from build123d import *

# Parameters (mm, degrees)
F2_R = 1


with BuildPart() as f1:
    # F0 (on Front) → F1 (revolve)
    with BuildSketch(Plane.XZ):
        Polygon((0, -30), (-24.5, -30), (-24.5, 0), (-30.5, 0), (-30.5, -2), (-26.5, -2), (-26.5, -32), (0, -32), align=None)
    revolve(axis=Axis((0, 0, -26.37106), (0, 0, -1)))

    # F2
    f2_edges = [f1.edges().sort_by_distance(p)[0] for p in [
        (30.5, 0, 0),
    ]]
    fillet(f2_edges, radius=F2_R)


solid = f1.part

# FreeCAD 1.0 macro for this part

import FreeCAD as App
import Part
import Sketcher


def edges_at(feature, points):
    """Names of the edges that pass closest to the given points."""
    edges = feature.Shape.Edges
    near = lambda p: min(range(len(edges)), key=lambda i: edges[i].distToShape(Part.Vertex(*p))[0])
    return sorted({f"Edge{near(p) + 1}" for p in points})

doc = App.newDocument("Part")
body = doc.addObject("PartDesign::Body", "Body")

# Sketch on XZ plane
sketch1 = doc.addObject("Sketcher::SketchObject", "Sketch")
body.addObject(sketch1)
sketch1.AttachmentSupport = (doc.XZ_Plane, [""])
sketch1.MapMode = "FlatFace"
sketch1.addGeometry(Part.LineSegment(App.Vector(0, -30, 0), App.Vector(-24.5, -30, 0)), False)
sketch1.addGeometry(Part.LineSegment(App.Vector(-24.5, -30, 0), App.Vector(-24.5, 0, 0)), False)
sketch1.addGeometry(Part.LineSegment(App.Vector(-24.5, 0, 0), App.Vector(-30.5, 0, 0)), False)
sketch1.addGeometry(Part.LineSegment(App.Vector(-30.5, 0, 0), App.Vector(-30.5, -2, 0)), False)
sketch1.addGeometry(Part.LineSegment(App.Vector(-30.5, -2, 0), App.Vector(-26.5, -2, 0)), False)
sketch1.addGeometry(Part.LineSegment(App.Vector(-26.5, -2, 0), App.Vector(-26.5, -32, 0)), False)
sketch1.addGeometry(Part.LineSegment(App.Vector(-26.5, -32, 0), App.Vector(0, -32, 0)), False)
sketch1.addGeometry(Part.LineSegment(App.Vector(0, -32, 0), App.Vector(0, -30, 0)), False)
sketch1.addConstraint(Sketcher.Constraint("Coincident", 0, 2, 1, 1))
sketch1.addConstraint(Sketcher.Constraint("Coincident", 1, 2, 2, 1))
sketch1.addConstraint(Sketcher.Constraint("Coincident", 2, 2, 3, 1))
sketch1.addConstraint(Sketcher.Constraint("Coincident", 3, 2, 4, 1))
sketch1.addConstraint(Sketcher.Constraint("Coincident", 4, 2, 5, 1))
sketch1.addConstraint(Sketcher.Constraint("Coincident", 5, 2, 6, 1))
sketch1.addConstraint(Sketcher.Constraint("Coincident", 6, 2, 7, 1))
sketch1.addConstraint(Sketcher.Constraint("Coincident", 7, 2, 0, 1))
sketch1.addConstraint(Sketcher.Constraint("Horizontal", 0))
sketch1.addConstraint(Sketcher.Constraint("Vertical", 1))
sketch1.addConstraint(Sketcher.Constraint("Horizontal", 2))
sketch1.addConstraint(Sketcher.Constraint("Vertical", 3))
sketch1.addConstraint(Sketcher.Constraint("Horizontal", 4))
sketch1.addConstraint(Sketcher.Constraint("Vertical", 5))
sketch1.addConstraint(Sketcher.Constraint("Horizontal", 6))
sketch1.addConstraint(Sketcher.Constraint("Vertical", 7))
sketch1.addConstraint(Sketcher.Constraint("PointOnObject", 1, 2, -1))
sketch1.addConstraint(Sketcher.Constraint("PointOnObject", 6, 2, -2))
sketch1.addConstraint(Sketcher.Constraint("Equal", 1, 5))
sketch1.addConstraint(Sketcher.Constraint("DistanceX", 2, 2, 2, 1, 6.0))
sketch1.addConstraint(Sketcher.Constraint("DistanceX", 4, 1, 4, 2, 4.0))
sketch1.addConstraint(Sketcher.Constraint("DistanceY", 1, 1, 1, 2, 30.0))
sketch1.addConstraint(Sketcher.Constraint("DistanceY", 3, 2, 3, 1, 2.0))
sketch1.addConstraint(Sketcher.Constraint("DistanceX", 0, 2, 0, 1, 24.5))
revolution = doc.addObject("PartDesign::Revolution", "Revolution")
body.addObject(revolution)
revolution.Profile = sketch1
revolution.ReferenceAxis = (sketch1, ["V_Axis"])
revolution.Angle = 360
doc.recompute()

fillet = doc.addObject("PartDesign::Fillet", "Fillet")
body.addObject(fillet)
fillet.Base = (revolution, edges_at(revolution, [(30.5, 0, 0)]))
fillet.Radius = 1

doc.recompute()
